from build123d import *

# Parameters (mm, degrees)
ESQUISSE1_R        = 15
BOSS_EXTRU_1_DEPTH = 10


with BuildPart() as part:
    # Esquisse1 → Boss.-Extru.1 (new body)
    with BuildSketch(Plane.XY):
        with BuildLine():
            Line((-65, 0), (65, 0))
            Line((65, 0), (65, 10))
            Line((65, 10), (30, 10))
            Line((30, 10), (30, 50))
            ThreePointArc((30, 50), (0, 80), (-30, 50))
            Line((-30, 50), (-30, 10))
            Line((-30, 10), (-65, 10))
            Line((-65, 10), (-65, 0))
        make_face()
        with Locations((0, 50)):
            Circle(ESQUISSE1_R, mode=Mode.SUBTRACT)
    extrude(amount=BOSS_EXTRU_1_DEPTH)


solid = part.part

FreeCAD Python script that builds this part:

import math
import FreeCAD as App
import Part
import Sketcher

doc = App.newDocument("Part")
body = doc.addObject("PartDesign::Body", "Body")

# Sketch on XY plane
sketch1 = body.newObject("Sketcher::SketchObject", "Sketch")
sketch1.AttachmentSupport = (doc.getObject("XY_Plane"), [""])
sketch1.MapMode = "FlatFace"
sketch1.addGeometry(Part.LineSegment(App.Vector(-65, 0, 0), App.Vector(65, 0, 0)), False)
sketch1.addGeometry(Part.LineSegment(App.Vector(65, 0, 0), App.Vector(65, 10, 0)), False)
sketch1.addGeometry(Part.LineSegment(App.Vector(65, 10, 0), App.Vector(30, 10, 0)), False)
sketch1.addGeometry(Part.LineSegment(App.Vector(30, 10, 0), App.Vector(30, 50, 0)), False)
sketch1.addGeometry(Part.ArcOfCircle(Part.Circle(App.Vector(0, 50, 0), App.Vector(0, 0, 1), 30), math.radians(0), math.radians(180)), False)
sketch1.addGeometry(Part.LineSegment(App.Vector(-30, 50, 0), App.Vector(-30, 10, 0)), False)
sketch1.addGeometry(Part.LineSegment(App.Vector(-30, 10, 0), App.Vector(-65, 10, 0)), False)
sketch1.addGeometry(Part.LineSegment(App.Vector(-65, 10, 0), App.Vector(-65, 0, 0)), False)
sketch1.addGeometry(Part.Circle(App.Vector(0, 50, 0), App.Vector(0, 0, 1), 15), False)
sketch1.addConstraint(Sketcher.Constraint("Coincident", 0, 2, 1, 1))
sketch1.addConstraint(Sketcher.Constraint("Coincident", 1, 2, 2, 1))
sketch1.addConstraint(Sketcher.Constraint("Coincident", 2, 2, 3, 1))
sketch1.addConstraint(Sketcher.Constraint("Tangent", 3, 2, 4, 1))
sketch1.addConstraint(Sketcher.Constraint("Tangent", 4, 2, 5, 1))
sketch1.addConstraint(Sketcher.Constraint("Coincident", 5, 2, 6, 1))
sketch1.addConstraint(Sketcher.Constraint("Coincident", 6, 2, 7, 1))
sketch1.addConstraint(Sketcher.Constraint("Coincident", 7, 2, 0, 1))
sketch1.addConstraint(Sketcher.Constraint("Horizontal", 0))
sketch1.addConstraint(Sketcher.Constraint("Vertical", 1))
sketch1.addConstraint(Sketcher.Constraint("Horizontal", 2))
sketch1.addConstraint(Sketcher.Constraint("Vertical", 3))
sketch1.addConstraint(Sketcher.Constraint("Vertical", 5))
sketch1.addConstraint(Sketcher.Constraint("Horizontal", 6))
sketch1.addConstraint(Sketcher.Constraint("Vertical", 7))
sketch1.addConstraint(Sketcher.Constraint("Coincident", 8, 3, 4, 3))
sketch1.addConstraint(Sketcher.Constraint("Symmetric", 0, 2, 7, 2, -1, 1))
sketch1.addConstraint(Sketcher.Constraint("Symmetric", 2, 2, 5, 2, -2))
sketch1.addConstraint(Sketcher.Constraint("Diameter", 8, 30.0))
sketch1.addConstraint(Sketcher.Constraint("Radius", 4, 30.0))
sketch1.addConstraint(Sketcher.Constraint("DistanceX", 0, 1, 0, 2, 130.0))
sketch1.addConstraint(Sketcher.Constraint("DistanceY", 1, 1, 1, 2, 10.0))
sketch1.addConstraint(Sketcher.Constraint("DistanceY", 3, 1, 3, 2, 40.0))
pad1 = body.newObject("PartDesign::Pad", "Pad")
pad1.Profile = sketch1
pad1.Length = 10

doc.recompute()
